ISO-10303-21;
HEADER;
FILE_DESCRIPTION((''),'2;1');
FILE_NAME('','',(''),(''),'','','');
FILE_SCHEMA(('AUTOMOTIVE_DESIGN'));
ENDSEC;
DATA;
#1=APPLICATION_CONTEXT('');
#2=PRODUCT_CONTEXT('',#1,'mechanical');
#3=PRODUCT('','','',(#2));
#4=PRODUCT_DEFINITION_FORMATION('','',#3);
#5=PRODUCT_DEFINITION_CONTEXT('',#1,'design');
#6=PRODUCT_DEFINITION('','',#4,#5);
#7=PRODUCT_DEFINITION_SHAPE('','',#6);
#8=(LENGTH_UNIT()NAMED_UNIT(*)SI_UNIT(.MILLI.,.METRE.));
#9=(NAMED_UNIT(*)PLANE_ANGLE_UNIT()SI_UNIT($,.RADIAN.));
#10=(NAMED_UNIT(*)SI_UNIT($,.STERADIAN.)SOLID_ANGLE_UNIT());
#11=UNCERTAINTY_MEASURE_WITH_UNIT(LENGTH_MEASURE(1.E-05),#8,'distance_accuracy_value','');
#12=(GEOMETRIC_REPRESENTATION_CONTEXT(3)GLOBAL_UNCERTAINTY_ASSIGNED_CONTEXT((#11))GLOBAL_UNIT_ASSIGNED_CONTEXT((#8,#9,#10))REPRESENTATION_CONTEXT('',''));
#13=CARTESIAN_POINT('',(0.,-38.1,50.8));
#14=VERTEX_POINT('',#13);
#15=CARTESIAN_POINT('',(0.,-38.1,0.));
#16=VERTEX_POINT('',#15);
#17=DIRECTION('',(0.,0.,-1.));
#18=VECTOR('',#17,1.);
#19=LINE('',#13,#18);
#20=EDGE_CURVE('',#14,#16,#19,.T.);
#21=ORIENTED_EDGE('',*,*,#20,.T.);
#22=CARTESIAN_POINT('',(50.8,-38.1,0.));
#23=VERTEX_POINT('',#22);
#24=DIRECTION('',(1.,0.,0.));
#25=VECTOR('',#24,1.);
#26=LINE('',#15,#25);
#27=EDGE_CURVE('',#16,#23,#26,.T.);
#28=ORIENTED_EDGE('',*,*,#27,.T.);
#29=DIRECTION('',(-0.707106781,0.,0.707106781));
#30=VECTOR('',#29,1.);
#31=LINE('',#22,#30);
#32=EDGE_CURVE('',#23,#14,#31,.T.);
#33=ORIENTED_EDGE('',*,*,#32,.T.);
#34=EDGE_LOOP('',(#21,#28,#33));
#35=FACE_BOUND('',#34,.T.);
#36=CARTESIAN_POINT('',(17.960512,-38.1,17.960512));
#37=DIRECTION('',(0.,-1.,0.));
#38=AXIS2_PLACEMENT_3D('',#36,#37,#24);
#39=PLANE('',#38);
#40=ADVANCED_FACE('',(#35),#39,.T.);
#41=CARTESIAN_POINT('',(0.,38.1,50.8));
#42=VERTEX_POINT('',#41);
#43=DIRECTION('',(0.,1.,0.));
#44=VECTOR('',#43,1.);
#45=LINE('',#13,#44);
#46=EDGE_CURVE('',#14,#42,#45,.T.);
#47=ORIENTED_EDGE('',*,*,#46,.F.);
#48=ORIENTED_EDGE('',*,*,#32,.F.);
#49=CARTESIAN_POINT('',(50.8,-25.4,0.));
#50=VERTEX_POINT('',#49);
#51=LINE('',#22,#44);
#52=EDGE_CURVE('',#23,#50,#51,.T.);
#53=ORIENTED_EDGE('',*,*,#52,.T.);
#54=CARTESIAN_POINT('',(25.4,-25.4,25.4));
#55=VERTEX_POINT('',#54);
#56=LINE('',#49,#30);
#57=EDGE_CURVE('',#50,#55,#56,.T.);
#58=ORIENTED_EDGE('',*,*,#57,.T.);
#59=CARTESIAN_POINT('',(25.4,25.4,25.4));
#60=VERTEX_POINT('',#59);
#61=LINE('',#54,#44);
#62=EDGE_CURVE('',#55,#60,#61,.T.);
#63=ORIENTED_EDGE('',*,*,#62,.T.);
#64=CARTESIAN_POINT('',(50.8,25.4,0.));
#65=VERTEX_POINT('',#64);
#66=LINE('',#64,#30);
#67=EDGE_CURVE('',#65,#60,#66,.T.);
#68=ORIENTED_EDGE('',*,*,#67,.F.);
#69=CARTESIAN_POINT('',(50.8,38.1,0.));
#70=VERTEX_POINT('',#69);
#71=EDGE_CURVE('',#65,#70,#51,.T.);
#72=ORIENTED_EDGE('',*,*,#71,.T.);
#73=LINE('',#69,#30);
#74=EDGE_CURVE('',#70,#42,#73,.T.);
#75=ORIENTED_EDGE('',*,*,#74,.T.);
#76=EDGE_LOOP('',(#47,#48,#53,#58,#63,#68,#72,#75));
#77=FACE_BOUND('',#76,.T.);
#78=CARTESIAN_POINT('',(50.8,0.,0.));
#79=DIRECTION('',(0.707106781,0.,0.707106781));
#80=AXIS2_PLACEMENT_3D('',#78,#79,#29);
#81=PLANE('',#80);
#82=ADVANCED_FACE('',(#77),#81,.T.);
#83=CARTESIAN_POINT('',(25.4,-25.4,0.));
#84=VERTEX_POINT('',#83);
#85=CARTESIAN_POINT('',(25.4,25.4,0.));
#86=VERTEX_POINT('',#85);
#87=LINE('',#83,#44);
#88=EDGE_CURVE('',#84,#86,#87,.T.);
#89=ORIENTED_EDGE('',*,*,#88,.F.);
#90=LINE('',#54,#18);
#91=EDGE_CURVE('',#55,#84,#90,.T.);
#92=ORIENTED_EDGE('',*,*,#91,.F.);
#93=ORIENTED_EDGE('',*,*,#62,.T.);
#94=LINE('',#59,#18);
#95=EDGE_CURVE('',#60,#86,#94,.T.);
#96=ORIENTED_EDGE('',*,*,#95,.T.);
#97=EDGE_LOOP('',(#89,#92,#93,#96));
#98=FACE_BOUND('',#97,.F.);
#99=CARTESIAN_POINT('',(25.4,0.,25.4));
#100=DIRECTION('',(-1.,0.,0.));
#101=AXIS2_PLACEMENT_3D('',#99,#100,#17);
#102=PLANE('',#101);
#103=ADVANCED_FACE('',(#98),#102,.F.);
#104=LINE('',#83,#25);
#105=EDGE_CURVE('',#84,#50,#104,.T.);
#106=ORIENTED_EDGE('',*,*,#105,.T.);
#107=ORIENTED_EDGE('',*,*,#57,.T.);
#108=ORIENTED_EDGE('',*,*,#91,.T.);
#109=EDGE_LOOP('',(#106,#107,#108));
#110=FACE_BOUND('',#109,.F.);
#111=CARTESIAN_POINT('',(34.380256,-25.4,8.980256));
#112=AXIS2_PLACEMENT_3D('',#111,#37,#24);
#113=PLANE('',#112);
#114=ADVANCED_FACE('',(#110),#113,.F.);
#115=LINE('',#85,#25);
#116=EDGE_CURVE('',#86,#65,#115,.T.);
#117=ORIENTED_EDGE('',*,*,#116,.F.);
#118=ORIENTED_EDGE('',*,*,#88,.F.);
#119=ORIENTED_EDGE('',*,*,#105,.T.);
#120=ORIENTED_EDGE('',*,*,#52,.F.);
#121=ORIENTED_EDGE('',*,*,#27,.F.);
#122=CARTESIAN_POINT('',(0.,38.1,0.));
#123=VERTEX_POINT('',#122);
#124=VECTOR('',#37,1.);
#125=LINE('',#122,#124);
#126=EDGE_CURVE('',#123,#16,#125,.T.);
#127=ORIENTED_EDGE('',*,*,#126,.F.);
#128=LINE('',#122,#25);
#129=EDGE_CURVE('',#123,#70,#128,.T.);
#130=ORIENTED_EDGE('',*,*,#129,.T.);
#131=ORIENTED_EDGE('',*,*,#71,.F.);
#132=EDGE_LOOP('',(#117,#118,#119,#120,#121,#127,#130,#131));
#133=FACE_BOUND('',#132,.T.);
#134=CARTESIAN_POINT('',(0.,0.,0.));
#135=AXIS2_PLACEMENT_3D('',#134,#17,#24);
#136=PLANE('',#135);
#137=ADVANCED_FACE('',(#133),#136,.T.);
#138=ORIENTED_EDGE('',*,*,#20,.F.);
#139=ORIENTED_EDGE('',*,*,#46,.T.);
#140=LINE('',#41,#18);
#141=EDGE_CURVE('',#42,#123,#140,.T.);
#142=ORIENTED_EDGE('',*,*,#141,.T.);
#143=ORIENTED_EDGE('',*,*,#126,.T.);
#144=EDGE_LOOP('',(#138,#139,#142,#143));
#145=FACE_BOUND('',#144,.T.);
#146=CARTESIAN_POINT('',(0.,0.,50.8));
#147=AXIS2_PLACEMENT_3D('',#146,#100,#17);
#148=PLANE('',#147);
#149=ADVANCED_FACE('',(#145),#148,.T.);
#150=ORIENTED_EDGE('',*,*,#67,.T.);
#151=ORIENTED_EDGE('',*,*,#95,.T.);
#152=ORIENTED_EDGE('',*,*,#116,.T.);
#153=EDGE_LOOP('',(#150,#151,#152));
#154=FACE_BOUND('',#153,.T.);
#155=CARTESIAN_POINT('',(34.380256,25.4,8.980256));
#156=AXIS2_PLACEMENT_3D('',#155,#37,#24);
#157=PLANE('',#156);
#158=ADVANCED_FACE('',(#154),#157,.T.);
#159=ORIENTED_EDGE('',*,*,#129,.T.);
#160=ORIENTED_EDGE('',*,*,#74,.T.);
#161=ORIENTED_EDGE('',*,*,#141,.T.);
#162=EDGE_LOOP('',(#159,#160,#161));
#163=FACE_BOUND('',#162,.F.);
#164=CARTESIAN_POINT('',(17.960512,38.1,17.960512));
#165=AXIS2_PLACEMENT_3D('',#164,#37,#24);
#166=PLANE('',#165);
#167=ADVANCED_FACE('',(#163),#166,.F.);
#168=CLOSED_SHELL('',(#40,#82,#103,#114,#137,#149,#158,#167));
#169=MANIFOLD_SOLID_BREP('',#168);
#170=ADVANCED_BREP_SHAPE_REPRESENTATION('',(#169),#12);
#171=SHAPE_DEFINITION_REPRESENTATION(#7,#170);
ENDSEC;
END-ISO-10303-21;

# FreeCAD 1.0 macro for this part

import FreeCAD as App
import Part
import Sketcher

V = App.Vector
Q = App.Units.Quantity

doc = App.newDocument("Part")
body = doc.addObject("PartDesign::Body", "Body")

# Sketch on XZ plane
sketch1 = body.newObject("Sketcher::SketchObject", "Sketch")
sketch1.AttachmentSupport = (doc.getObject("XZ_Plane"), [""])
sketch1.MapMode = "FlatFace"
sketch1.addGeometry(Part.LineSegment(V(0, 51, 0), V(0, 0, 0)), False)
sketch1.addGeometry(Part.LineSegment(V(0, 0, 0), V(51, 0, 0)), False)
sketch1.addGeometry(Part.LineSegment(V(51, 0, 0), V(0, 51, 0)), False)
sketch1.addConstraint(Sketcher.Constraint("Coincident", 0, 2, 1, 1))
sketch1.addConstraint(Sketcher.Constraint("Coincident", 1, 2, 2, 1))
sketch1.addConstraint(Sketcher.Constraint("Coincident", 2, 2, 0, 1))
sketch1.addConstraint(Sketcher.Constraint("Vertical", 0))
sketch1.addConstraint(Sketcher.Constraint("Horizontal", 1))
sketch1.addConstraint(Sketcher.Constraint("Coincident", 0, 2, -1, 1))
sketch1.addConstraint(Sketcher.Constraint("Equal", 1, 0))
sketch1.addConstraint(Sketcher.Constraint("DistanceX", 1, 1, 1, 2, Q("2 in")))
pad1 = body.newObject("PartDesign::Pad", "Pad")
pad1.Profile = sketch1
pad1.Length = Q("3 in")
pad1.Midplane = True

# Sketch on XZ plane
sketch2 = body.newObject("Sketcher::SketchObject", "Sketch001")
sketch2.AttachmentSupport = (doc.getObject("XZ_Plane"), [""])
sketch2.MapMode = "FlatFace"
sketch2.addGeometry(Part.LineSegment(V(25, 0, 0), V(51, 0, 0)), False)
sketch2.addGeometry(Part.LineSegment(V(51, 0, 0), V(25, 25, 0)), False)
sketch2.addGeometry(Part.LineSegment(V(25, 25, 0), V(25, 0, 0)), False)
sketch2.addConstraint(Sketcher.Constraint("Coincident", 0, 2, 1, 1))
sketch2.addConstraint(Sketcher.Constraint("Coincident", 1, 2, 2, 1))
sketch2.addConstraint(Sketcher.Constraint("Coincident", 2, 2, 0, 1))
sketch2.addConstraint(Sketcher.Constraint("Horizontal", 0))
sketch2.addConstraint(Sketcher.Constraint("Vertical", 2))
sketch2.addConstraint(Sketcher.Constraint("PointOnObject", 0, 2, -1))
sketch2.addConstraint(Sketcher.Constraint("Equal", 0, 2))
sketch2.addConstraint(Sketcher.Constraint("DistanceX", 0, 1, 0, 2, Q("1 in")))
sketch2.addConstraint(Sketcher.Constraint("DistanceX", -1, 1, 0, 2, Q("2 in")))
pocket1 = body.newObject("PartDesign::Pocket", "Pocket")
pocket1.Profile = sketch2
pocket1.Length = Q("2 in")
pocket1.Midplane = True

doc.recompute()
